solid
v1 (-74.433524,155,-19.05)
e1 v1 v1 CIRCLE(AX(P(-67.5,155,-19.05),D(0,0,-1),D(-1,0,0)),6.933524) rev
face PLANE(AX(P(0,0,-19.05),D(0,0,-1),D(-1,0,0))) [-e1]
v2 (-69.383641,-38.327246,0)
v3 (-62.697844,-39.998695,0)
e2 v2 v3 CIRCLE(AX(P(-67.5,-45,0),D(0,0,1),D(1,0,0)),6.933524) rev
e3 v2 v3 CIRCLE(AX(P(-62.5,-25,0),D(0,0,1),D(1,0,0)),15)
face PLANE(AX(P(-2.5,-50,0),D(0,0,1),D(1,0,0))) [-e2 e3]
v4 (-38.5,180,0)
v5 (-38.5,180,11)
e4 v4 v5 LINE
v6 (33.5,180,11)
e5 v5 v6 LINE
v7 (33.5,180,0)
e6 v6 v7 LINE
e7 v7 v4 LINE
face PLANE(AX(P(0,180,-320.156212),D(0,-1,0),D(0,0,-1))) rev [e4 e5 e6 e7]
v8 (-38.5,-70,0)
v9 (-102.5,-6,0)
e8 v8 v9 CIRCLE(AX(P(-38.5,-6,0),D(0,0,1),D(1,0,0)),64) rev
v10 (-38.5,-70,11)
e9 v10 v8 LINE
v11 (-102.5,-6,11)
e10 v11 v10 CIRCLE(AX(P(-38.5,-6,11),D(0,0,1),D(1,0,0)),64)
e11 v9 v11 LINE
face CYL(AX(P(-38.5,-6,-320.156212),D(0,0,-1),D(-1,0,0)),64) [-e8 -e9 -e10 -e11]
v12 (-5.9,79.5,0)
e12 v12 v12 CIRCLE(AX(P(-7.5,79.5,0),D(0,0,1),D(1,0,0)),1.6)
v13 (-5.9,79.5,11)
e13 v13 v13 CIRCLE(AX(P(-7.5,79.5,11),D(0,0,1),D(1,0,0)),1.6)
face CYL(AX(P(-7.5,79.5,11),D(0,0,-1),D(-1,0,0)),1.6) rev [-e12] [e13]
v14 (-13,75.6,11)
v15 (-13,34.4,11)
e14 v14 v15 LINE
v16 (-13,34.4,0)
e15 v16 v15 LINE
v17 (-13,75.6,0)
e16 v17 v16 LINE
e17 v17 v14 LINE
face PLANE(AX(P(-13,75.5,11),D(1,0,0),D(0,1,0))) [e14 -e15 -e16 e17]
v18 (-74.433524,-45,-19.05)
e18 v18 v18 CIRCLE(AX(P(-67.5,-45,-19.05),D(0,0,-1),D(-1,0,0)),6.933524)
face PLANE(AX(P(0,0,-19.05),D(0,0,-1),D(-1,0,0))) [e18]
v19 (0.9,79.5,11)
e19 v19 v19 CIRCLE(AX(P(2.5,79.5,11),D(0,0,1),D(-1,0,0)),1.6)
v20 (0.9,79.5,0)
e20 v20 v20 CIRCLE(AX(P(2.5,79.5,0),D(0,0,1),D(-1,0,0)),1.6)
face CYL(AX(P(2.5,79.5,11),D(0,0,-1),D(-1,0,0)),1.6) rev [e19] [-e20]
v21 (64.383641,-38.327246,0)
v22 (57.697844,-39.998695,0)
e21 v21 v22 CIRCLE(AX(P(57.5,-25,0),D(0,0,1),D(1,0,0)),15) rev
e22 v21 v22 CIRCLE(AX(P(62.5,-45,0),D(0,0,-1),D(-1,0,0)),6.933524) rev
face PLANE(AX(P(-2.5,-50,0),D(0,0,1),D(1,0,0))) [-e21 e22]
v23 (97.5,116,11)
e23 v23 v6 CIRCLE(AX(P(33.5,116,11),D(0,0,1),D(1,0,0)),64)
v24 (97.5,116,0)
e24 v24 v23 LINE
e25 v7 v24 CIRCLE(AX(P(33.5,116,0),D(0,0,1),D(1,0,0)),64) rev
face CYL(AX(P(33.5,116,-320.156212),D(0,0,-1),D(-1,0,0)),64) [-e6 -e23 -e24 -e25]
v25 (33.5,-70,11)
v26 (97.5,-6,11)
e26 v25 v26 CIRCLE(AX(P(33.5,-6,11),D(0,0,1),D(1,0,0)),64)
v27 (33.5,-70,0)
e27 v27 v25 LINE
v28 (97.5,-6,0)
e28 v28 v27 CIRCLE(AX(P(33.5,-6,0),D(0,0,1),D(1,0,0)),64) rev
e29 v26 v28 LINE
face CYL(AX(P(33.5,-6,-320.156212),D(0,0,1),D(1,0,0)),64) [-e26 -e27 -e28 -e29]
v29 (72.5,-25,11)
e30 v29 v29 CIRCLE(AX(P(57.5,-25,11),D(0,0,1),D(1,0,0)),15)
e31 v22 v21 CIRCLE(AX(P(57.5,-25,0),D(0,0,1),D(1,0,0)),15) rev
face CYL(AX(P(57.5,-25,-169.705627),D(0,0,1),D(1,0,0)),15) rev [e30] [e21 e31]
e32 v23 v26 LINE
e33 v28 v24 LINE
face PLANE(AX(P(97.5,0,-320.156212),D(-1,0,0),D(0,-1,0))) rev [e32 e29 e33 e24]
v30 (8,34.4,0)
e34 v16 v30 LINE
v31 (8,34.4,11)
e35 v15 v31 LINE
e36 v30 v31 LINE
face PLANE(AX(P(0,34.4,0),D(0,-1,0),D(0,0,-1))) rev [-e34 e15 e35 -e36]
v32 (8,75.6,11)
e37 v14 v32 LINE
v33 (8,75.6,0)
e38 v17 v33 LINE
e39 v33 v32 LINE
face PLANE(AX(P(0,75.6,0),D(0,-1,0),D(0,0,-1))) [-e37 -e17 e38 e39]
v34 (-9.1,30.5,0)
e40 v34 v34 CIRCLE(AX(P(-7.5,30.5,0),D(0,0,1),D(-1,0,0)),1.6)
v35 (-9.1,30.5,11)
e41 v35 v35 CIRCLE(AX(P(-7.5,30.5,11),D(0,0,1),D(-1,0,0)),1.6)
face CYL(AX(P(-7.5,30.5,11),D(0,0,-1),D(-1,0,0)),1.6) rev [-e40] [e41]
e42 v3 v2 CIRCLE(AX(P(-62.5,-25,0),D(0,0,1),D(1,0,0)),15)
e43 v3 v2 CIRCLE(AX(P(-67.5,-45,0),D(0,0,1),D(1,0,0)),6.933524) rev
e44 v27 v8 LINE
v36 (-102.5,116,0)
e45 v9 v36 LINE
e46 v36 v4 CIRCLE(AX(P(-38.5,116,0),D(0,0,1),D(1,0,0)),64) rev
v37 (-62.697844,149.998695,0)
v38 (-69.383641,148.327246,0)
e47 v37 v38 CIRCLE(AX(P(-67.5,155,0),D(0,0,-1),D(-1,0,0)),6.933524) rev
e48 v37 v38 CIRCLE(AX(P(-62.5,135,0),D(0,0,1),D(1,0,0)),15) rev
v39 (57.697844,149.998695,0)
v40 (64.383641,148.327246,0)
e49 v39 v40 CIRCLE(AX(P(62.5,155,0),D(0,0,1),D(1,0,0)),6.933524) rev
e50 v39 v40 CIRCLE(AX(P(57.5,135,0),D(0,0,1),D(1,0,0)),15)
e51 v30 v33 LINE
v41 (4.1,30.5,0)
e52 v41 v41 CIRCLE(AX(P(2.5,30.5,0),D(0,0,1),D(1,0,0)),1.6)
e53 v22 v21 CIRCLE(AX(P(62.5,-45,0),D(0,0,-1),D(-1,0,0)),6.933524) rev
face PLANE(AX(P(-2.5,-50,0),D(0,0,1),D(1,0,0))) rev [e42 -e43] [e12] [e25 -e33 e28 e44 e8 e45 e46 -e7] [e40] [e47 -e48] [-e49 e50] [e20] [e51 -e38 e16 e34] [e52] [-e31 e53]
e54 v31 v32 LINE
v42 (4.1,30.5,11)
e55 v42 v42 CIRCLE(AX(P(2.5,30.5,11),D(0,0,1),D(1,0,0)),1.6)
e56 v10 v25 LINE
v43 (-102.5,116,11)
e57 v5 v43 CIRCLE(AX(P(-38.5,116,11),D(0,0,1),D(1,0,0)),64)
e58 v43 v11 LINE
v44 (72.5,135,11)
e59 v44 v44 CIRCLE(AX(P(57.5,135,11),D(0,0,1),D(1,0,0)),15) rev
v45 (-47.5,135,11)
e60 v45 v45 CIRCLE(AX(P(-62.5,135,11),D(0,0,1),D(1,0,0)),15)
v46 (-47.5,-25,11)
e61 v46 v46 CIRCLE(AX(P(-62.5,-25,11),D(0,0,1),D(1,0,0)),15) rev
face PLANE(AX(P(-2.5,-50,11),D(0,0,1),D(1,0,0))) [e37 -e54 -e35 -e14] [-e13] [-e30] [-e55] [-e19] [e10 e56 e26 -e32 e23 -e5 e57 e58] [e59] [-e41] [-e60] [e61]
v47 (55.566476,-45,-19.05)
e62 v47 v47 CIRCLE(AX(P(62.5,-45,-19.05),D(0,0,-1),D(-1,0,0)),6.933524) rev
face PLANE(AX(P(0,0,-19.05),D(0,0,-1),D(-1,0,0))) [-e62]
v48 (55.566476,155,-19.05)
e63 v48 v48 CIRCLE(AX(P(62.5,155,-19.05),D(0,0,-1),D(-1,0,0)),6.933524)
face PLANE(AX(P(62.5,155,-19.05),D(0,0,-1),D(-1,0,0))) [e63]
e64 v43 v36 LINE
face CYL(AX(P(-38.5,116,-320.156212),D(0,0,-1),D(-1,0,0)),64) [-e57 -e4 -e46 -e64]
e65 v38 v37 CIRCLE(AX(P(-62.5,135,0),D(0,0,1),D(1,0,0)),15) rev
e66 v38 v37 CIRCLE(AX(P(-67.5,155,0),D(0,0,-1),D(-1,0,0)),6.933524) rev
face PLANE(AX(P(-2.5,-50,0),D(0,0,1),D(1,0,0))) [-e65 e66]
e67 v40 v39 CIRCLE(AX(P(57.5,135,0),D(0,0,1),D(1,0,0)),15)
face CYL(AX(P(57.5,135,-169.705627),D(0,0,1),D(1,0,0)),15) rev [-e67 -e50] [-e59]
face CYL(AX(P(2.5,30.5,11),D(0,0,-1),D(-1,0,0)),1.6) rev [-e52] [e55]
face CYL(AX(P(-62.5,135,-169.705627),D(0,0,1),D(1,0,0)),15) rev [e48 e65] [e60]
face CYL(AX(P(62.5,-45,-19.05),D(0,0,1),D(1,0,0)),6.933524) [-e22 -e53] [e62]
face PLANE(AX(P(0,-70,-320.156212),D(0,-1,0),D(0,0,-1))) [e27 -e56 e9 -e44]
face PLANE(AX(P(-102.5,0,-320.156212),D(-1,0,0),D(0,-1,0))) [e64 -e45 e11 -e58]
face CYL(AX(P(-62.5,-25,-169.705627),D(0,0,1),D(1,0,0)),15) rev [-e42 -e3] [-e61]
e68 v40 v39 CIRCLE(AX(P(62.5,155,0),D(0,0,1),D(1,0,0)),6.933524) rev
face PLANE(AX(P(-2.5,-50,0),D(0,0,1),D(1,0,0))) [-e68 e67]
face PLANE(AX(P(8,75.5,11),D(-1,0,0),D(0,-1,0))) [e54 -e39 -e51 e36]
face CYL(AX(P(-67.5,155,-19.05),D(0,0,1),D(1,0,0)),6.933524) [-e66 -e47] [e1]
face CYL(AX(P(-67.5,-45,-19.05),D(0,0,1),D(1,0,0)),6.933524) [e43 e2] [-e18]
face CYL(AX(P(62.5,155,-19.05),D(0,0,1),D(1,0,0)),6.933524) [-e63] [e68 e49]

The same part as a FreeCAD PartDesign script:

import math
import FreeCAD as App
import Part
import Sketcher

V = App.Vector
Q = App.Units.Quantity


def edges_at(feature, points):
    """Names of the edges that pass closest to the given points."""
    edges = feature.Shape.Edges
    near = lambda p: min(range(len(edges)), key=lambda i: edges[i].distToShape(Part.Vertex(*p))[0])
    return sorted({f"Edge{near(p) + 1}" for p in points})


def add_polygon(sketch, points):
    """Adds a closed chain of lines whose ends are joined by coincident constraints."""
    first, n = sketch.GeometryCount, len(points)
    for a, b in zip(points, points[1:] + points[:1]):
        sketch.addGeometry(Part.LineSegment(App.Vector(*a, 0), App.Vector(*b, 0)), False)
    for i in range(n):
        sketch.addConstraint(Sketcher.Constraint("Coincident", first + i, 2, first + (i + 1) % n, 1))

doc = App.newDocument("Part")
params = doc.addObject("Spreadsheet::Sheet", "Params")
for row, (alias, value) in enumerate([
    ("sketch1_diameter", "3.2 mm"),
    ("sketch1_radius", "17.5 mm"),
    ("sketch1_width", "21 mm"),
    ("sketch1_height", "120 mm"),
    ("sketch1_height2", "41 mm"),
    ("pad1_length", "11 mm"),
    ("sketch2_width", "21 mm"),
    ("sketch2_height", "0.1 mm"),
    ("sketch3_diameter", "3.2 mm"),
    ("sketch3_width", "21 mm"),
    ("sketch3_height", "41.2 mm"),
    ("pocket2_length", "11 mm"),
    ("sketch4_diameter", "3.2 mm"),
    ("sketch4_radius", "17.5 mm"),
    ("sketch4_width", "200 mm"),
    ("sketch4_width2", "21 mm"),
    ("sketch4_height", "250 mm"),
    ("pad2_length", "11 mm"),
    ("fillet_radius", "64 mm"),
    ("fillet2_radius", "64 mm"),
    ("fillet3_radius", "64 mm"),
    ("fillet4_radius", "64 mm"),
    ("pad3_length", "19.05 mm"),
    ("sketch6_diameter", "30 mm"),
    ("pocket3_length", "11 mm"),
], start=1):
    params.set(f"A{row}", alias)
    params.set(f"B{row}", "=" + value)
    params.setAlias(f"B{row}", alias)

body = doc.addObject("PartDesign::Body", "Body")

# Sketch on XY plane
sketch1 = body.newObject("Sketcher::SketchObject", "Sketch")
sketch1.AttachmentSupport = (doc.getObject("XY_Plane"), [""])
sketch1.MapMode = "FlatFace"
sketch1.addGeometry(Part.LineSegment(V(-20, 70, 0), V(-20, -50, 0)), False)  # 0
sketch1.addGeometry(Part.ArcOfCircle(Part.Circle(V(-2.5, -50, 0), V(0, 0, 1), 17.5), math.radians(180), math.radians(360)), False)  # 1
sketch1.addGeometry(Part.LineSegment(V(15, -50, 0), V(15, 70, 0)), False)  # 2
sketch1.addGeometry(Part.ArcOfCircle(Part.Circle(V(-2.5, 70, 0), V(0, 0, 1), 17.5), math.radians(0), math.radians(180)), False)  # 3
sketch1.addGeometry(Part.Circle(V(-7.5, 30.5, 0), V(0, 0, 1), 1.6), False)  # 4
sketch1.addGeometry(Part.Circle(V(2.5, 30.5, 0), V(0, 0, 1), 1.6), False)  # 5
sketch1.addGeometry(Part.Circle(V(-7.5, 79.5, 0), V(0, 0, 1), 1.6), False)  # 6
add_polygon(sketch1, [(8, 34.5), (-13, 34.5), (-13, 75.5), (8, 75.5)])  # lines 7-10
sketch1.addGeometry(Part.Circle(V(2.5, 79.5, 0), V(0, 0, 1), 1.6), False)  # 11
sketch1.addConstraint([
    Sketcher.Constraint("Tangent", 0, 2, 1, 1),
    Sketcher.Constraint("Tangent", 1, 2, 2, 1),
    Sketcher.Constraint("Tangent", 2, 2, 3, 1),
    Sketcher.Constraint("Tangent", 3, 2, 0, 1),
    Sketcher.Constraint("Vertical", 0),
    Sketcher.Constraint("Vertical", 2),
    Sketcher.Constraint("Horizontal", 7),
    Sketcher.Constraint("Vertical", 8),
    Sketcher.Constraint("Horizontal", 9),
    Sketcher.Constraint("Vertical", 10),
    Sketcher.Constraint("Equal", 4, 5),
    Sketcher.Constraint("Equal", 5, 6),
    Sketcher.Constraint("Equal", 6, 11),
    Sketcher.Constraint("Horizontal", 4, 3, 5, 3),
    Sketcher.Constraint("Horizontal", 6, 3, 11, 3),
    Sketcher.Constraint("Vertical", 4, 3, 6, 3),
    Sketcher.Constraint("Vertical", 5, 3, 11, 3),
    Sketcher.Constraint("Diameter", 4, Q("3.2 mm")),
    Sketcher.Constraint("Radius", 1, Q("17.5 mm")),
    Sketcher.Constraint("DistanceX", 7, 2, 7, 1, Q("21 mm")),
    Sketcher.Constraint("DistanceY", 0, 2, 0, 1, Q("120 mm")),
    Sketcher.Constraint("DistanceY", 8, 1, 8, 2, Q("41 mm")),
    Sketcher.Constraint("DistanceY", 1, 3, -1, 1, Q("50 mm")),
    Sketcher.Constraint("DistanceX", 0, 2, -1, 1, Q("20 mm")),
    Sketcher.Constraint("DistanceX", 7, 2, -1, 1, Q("13 mm")),
    Sketcher.Constraint("DistanceX", 4, 3, 3, 3, Q("5 mm")),
    Sketcher.Constraint("DistanceX", 4, 3, 5, 3, Q("10 mm")),
    Sketcher.Constraint("DistanceY", 4, 3, 6, 3, Q("49 mm")),
    Sketcher.Constraint("DistanceY", 4, 3, 7, 2, Q("4 mm")),
    Sketcher.Constraint("DistanceY", -1, 1, 4, 3, Q("30.5 mm")),
])
sketch1.setExpression("Constraints[21]", "Params.sketch1_diameter")
sketch1.setExpression("Constraints[22]", "Params.sketch1_radius")
sketch1.setExpression("Constraints[23]", "Params.sketch1_width")
sketch1.setExpression("Constraints[24]", "Params.sketch1_height")
sketch1.setExpression("Constraints[25]", "Params.sketch1_height2")
pad1 = body.newObject("PartDesign::Pad", "Pad")
pad1.Profile = sketch1
pad1.setExpression("Length", "Params.pad1_length")

# Sketch on XY plane
sketch2 = body.newObject("Sketcher::SketchObject", "Sketch001")
sketch2.AttachmentSupport = (doc.getObject("XY_Plane"), [""])
sketch2.MapMode = "FlatFace"
sketch2.AttachmentOffset = App.Placement(V(0, 0, 11), App.Rotation())
add_polygon(sketch2, [(-13, 75.6), (-13, 75.5), (8, 75.5), (8, 75.6)])  # lines 0-3
add_polygon(sketch2, [(-13, 34.5), (-13, 34.4), (8, 34.4), (8, 34.5)])  # lines 4-7
sketch2.addConstraint([
    Sketcher.Constraint("Vertical", 0),
    Sketcher.Constraint("Horizontal", 1),
    Sketcher.Constraint("Vertical", 2),
    Sketcher.Constraint("Horizontal", 3),
    Sketcher.Constraint("Vertical", 4),
    Sketcher.Constraint("Horizontal", 5),
    Sketcher.Constraint("Vertical", 6),
    Sketcher.Constraint("Horizontal", 7),
    Sketcher.Constraint("Vertical", 3, 2, 4, 2),
    Sketcher.Constraint("Vertical", 2, 2, 5, 2),
    Sketcher.Constraint("Equal", 2, 4),
    Sketcher.Constraint("DistanceX", 1, 1, 1, 2, Q("21 mm")),
    Sketcher.Constraint("DistanceY", 0, 2, 0, 1, Q("0.1 mm")),
    Sketcher.Constraint("DistanceX", 0, 2, -1, 1, Q("13 mm")),
    Sketcher.Constraint("DistanceY", 6, 2, 1, 2, Q("41 mm")),
    Sketcher.Constraint("DistanceY", -1, 1, 0, 2, Q("75.5 mm")),
])
sketch2.setExpression("Constraints[19]", "Params.sketch2_width")
sketch2.setExpression("Constraints[20]", "Params.sketch2_height")
pocket1 = body.newObject("PartDesign::Pocket", "Pocket")
pocket1.Profile = sketch2
pocket1.Type = "ThroughAll"

# Sketch on XY plane
sketch3 = body.newObject("Sketcher::SketchObject", "Sketch002")
sketch3.AttachmentSupport = (doc.getObject("XY_Plane"), [""])
sketch3.MapMode = "FlatFace"
add_polygon(sketch3, [(8, -14.4), (8, -55.6), (-13, -55.6), (-13, -14.4)])  # lines 0-3
sketch3.addGeometry(Part.Circle(V(2.5, -10.5, 0), V(0, 0, 1), 1.6), False)  # 4
sketch3.addGeometry(Part.Circle(V(-7.5, -10.5, 0), V(0, 0, 1), 1.6), False)  # 5
sketch3.addGeometry(Part.Circle(V(2.5, -59.5, 0), V(0, 0, 1), 1.6), False)  # 6
sketch3.addGeometry(Part.Circle(V(-7.5, -59.5, 0), V(0, 0, 1), 1.6), False)  # 7
sketch3.addConstraint([
    Sketcher.Constraint("Vertical", 0),
    Sketcher.Constraint("Horizontal", 1),
    Sketcher.Constraint("Vertical", 2),
    Sketcher.Constraint("Horizontal", 3),
    Sketcher.Constraint("Equal", 4, 5),
    Sketcher.Constraint("Equal", 5, 6),
    Sketcher.Constraint("Equal", 6, 7),
    Sketcher.Constraint("Horizontal", 4, 3, 5, 3),
    Sketcher.Constraint("Horizontal", 6, 3, 7, 3),
    Sketcher.Constraint("Vertical", 4, 3, 6, 3),
    Sketcher.Constraint("Vertical", 5, 3, 7, 3),
    Sketcher.Constraint("Diameter", 4, Q("3.2 mm")),
    Sketcher.Constraint("DistanceX", 1, 2, 1, 1, Q("21 mm")),
    Sketcher.Constraint("DistanceY", 0, 2, 0, 1, Q("41.2 mm")),
    Sketcher.Constraint("DistanceX", -1, 1, 0, 2, Q("8 mm")),
    Sketcher.Constraint("DistanceX", 5, 3, 4, 3, Q("10 mm")),
    Sketcher.Constraint("DistanceY", 6, 3, 4, 3, Q("49 mm")),
    Sketcher.Constraint("DistanceX", -1, 1, 4, 3, Q("2.5 mm")),
    Sketcher.Constraint("DistanceY", 4, 3, -1, 1, Q("10.5 mm")),
    Sketcher.Constraint("DistanceY", 0, 2, -1, 1, Q("55.6 mm")),
])
sketch3.setExpression("Constraints[15]", "Params.sketch3_diameter")
sketch3.setExpression("Constraints[16]", "Params.sketch3_width")
sketch3.setExpression("Constraints[17]", "Params.sketch3_height")
pocket2 = body.newObject("PartDesign::Pocket", "Pocket001")
pocket2.Profile = sketch3
pocket2.setExpression("Length", "Params.pocket2_length")
pocket2.Reversed = True

# Sketch on XY plane
sketch4 = body.newObject("Sketcher::SketchObject", "Sketch003")
sketch4.AttachmentSupport = (doc.getObject("XY_Plane"), [""])
sketch4.MapMode = "FlatFace"
add_polygon(sketch4, [(-102.5, 180), (-102.5, -70), (97.5, -70), (97.5, 180)])  # lines 0-3
sketch4.addGeometry(Part.ArcOfCircle(Part.Circle(V(-2.5, -50, 0), V(0, 0, 1), 17.5), math.radians(180), math.radians(360)), False)  # 4
sketch4.addGeometry(Part.LineSegment(V(-20, -50, 0), V(-20, 70, 0)), False)  # 5
sketch4.addGeometry(Part.ArcOfCircle(Part.Circle(V(-2.5, 70, 0), V(0, 0, 1), 17.5), math.radians(0), math.radians(180)), False)  # 6
sketch4.addGeometry(Part.LineSegment(V(15, 70, 0), V(15, -50, 0)), False)  # 7
add_polygon(sketch4, [(-13, -14.4), (-13, -55.6), (8, -55.6), (8, -14.4)])  # lines 8-11
sketch4.addGeometry(Part.Circle(V(-7.5, -59.5, 0), V(0, 0, 1), 1.6), False)  # 12
sketch4.addGeometry(Part.Circle(V(2.5, -59.5, 0), V(0, 0, 1), 1.6), False)  # 13
sketch4.addGeometry(Part.Circle(V(-7.5, -10.5, 0), V(0, 0, 1), 1.6), False)  # 14
sketch4.addGeometry(Part.Circle(V(2.5, -10.5, 0), V(0, 0, 1), 1.6), False)  # 15
sketch4.addConstraint([
    Sketcher.Constraint("Tangent", 4, 1, 5, 1),
    Sketcher.Constraint("Tangent", 5, 2, 6, 2),
    Sketcher.Constraint("Tangent", 6, 1, 7, 1),
    Sketcher.Constraint("Tangent", 7, 2, 4, 2),
    Sketcher.Constraint("Vertical", 0),
    Sketcher.Constraint("Horizontal", 1),
    Sketcher.Constraint("Vertical", 2),
    Sketcher.Constraint("Horizontal", 3),
    Sketcher.Constraint("Vertical", 5),
    Sketcher.Constraint("Vertical", 7),
    Sketcher.Constraint("Vertical", 8),
    Sketcher.Constraint("Horizontal", 9),
    Sketcher.Constraint("Vertical", 10),
    Sketcher.Constraint("Horizontal", 11),
    Sketcher.Constraint("Equal", 12, 13),
    Sketcher.Constraint("Equal", 13, 14),
    Sketcher.Constraint("Equal", 14, 15),
    Sketcher.Constraint("Horizontal", 12, 3, 13, 3),
    Sketcher.Constraint("Horizontal", 14, 3, 15, 3),
    Sketcher.Constraint("Vertical", 12, 3, 14, 3),
    Sketcher.Constraint("Vertical", 13, 3, 15, 3),
    Sketcher.Constraint("Diameter", 12, Q("3.2 mm")),
    Sketcher.Constraint("Radius", 4, Q("17.5 mm")),
    Sketcher.Constraint("DistanceX", 1, 1, 1, 2, Q("200 mm")),
    Sketcher.Constraint("DistanceX", 9, 1, 9, 2, Q("21 mm")),
    Sketcher.Constraint("DistanceY", 0, 2, 0, 1, Q("250 mm")),
    Sketcher.Constraint("DistanceY", 5, 1, 5, 2, Q("120 mm")),
    Sketcher.Constraint("DistanceY", 8, 2, 8, 1, Q("41.2 mm")),
    Sketcher.Constraint("DistanceY", 4, 3, -1, 1, Q("50 mm")),
    Sketcher.Constraint("DistanceY", 0, 2, -1, 1, Q("70 mm")),
    Sketcher.Constraint("DistanceX", 4, 1, -1, 1, Q("20 mm")),
    Sketcher.Constraint("DistanceX", 8, 2, -1, 1, Q("13 mm")),
    Sketcher.Constraint("DistanceX", 12, 3, 4, 3, Q("5 mm")),
    Sketcher.Constraint("DistanceX", 12, 3, 13, 3, Q("10 mm")),
    Sketcher.Constraint("DistanceY", 12, 3, 14, 3, Q("49 mm")),
    Sketcher.Constraint("DistanceX", 0, 2, 12, 3, Q("95 mm")),
    Sketcher.Constraint("DistanceY", 12, 3, -1, 1, Q("59.5 mm")),
    Sketcher.Constraint("DistanceY", 8, 2, -1, 1, Q("55.6 mm")),
])
sketch4.setExpression("Constraints[29]", "Params.sketch4_diameter")
sketch4.setExpression("Constraints[30]", "Params.sketch4_radius")
sketch4.setExpression("Constraints[31]", "Params.sketch4_width")
sketch4.setExpression("Constraints[32]", "Params.sketch4_width2")
sketch4.setExpression("Constraints[33]", "Params.sketch4_height")
pad2 = body.newObject("PartDesign::Pad", "Pad001")
pad2.Profile = sketch4
pad2.setExpression("Length", "Params.pad2_length")
doc.recompute()

fillet = body.newObject("PartDesign::Fillet", "Fillet")
fillet.Base = (pad2, edges_at(pad2, [(-102.5, 180, 5.5)]))
fillet.setExpression("Radius", "Params.fillet_radius")
doc.recompute()

fillet2 = body.newObject("PartDesign::Fillet", "Fillet001")
fillet2.Base = (fillet, edges_at(fillet, [(97.5, 180, 5.5)]))
fillet2.setExpression("Radius", "Params.fillet2_radius")
doc.recompute()

fillet3 = body.newObject("PartDesign::Fillet", "Fillet002")
fillet3.Base = (fillet2, edges_at(fillet2, [(97.5, -70, 5.5)]))
fillet3.setExpression("Radius", "Params.fillet3_radius")
doc.recompute()

fillet4 = body.newObject("PartDesign::Fillet", "Fillet003")
fillet4.Base = (fillet3, edges_at(fillet3, [(-102.5, -70, 5.5)]))
fillet4.setExpression("Radius", "Params.fillet4_radius")

# Sketch on XY plane
sketch5 = body.newObject("Sketcher::SketchObject", "Sketch004")
sketch5.AttachmentSupport = (doc.getObject("XY_Plane"), [""])
sketch5.MapMode = "FlatFace"
sketch5.addGeometry([
    Part.Circle(V(-68, 155, 0), V(0, 0, 1), 7),
    Part.Circle(V(62, -45, 0), V(0, 0, 1), 7),
    Part.Circle(V(-68, -45, 0), V(0, 0, 1), 7),
    Part.Circle(V(62, 155, 0), V(0, 0, 1), 7),
], False)
sketch5.addConstraint([
    Sketcher.Constraint("Equal", 0, 1),
    Sketcher.Constraint("Equal", 1, 2),
    Sketcher.Constraint("Equal", 2, 3),
    Sketcher.Constraint("Horizontal", 1, 3, 2, 3),
    Sketcher.Constraint("Horizontal", 0, 3, 3, 3),
    Sketcher.Constraint("Vertical", 0, 3, 2, 3),
    Sketcher.Constraint("Vertical", 1, 3, 3, 3),
    Sketcher.Constraint("DistanceY", -1, 1, 0, 3, Q("155 mm")),
    Sketcher.Constraint("DistanceY", 1, 3, -1, 1, Q("45 mm")),
    Sketcher.Constraint("DistanceX", 0, 3, 1, 3, Q("130 mm")),
    Sketcher.Constraint("DistanceX", 0, 3, -1, 1, Q("67.5 mm")),
    Sketcher.Constraint("Diameter", 0, Q("13.867048 mm")),
])
pad3 = body.newObject("PartDesign::Pad", "Pad002")
pad3.Profile = sketch5
pad3.setExpression("Length", "Params.pad3_length")
pad3.Reversed = True

# Sketch on XY plane
sketch6 = body.newObject("Sketcher::SketchObject", "Sketch005")
sketch6.AttachmentSupport = (doc.getObject("XY_Plane"), [""])
sketch6.MapMode = "FlatFace"
sketch6.AttachmentOffset = App.Placement(V(0, 0, 11), App.Rotation())
sketch6.addGeometry([
    Part.Circle(V(-62, 135, 0), V(0, 0, 1), 15),
    Part.Circle(V(58, 135, 0), V(0, 0, 1), 15),
    Part.Circle(V(58, -25, 0), V(0, 0, 1), 15),
    Part.Circle(V(-62, -25, 0), V(0, 0, 1), 15),
], False)
sketch6.addConstraint([
    Sketcher.Constraint("Equal", 0, 1),
    Sketcher.Constraint("Equal", 1, 2),
    Sketcher.Constraint("Equal", 2, 3),
    Sketcher.Constraint("Horizontal", 0, 3, 1, 3),
    Sketcher.Constraint("Horizontal", 2, 3, 3, 3),
    Sketcher.Constraint("Vertical", 1, 3, 2, 3),
    Sketcher.Constraint("Vertical", 0, 3, 3, 3),
    Sketcher.Constraint("Diameter", 0, Q("30 mm")),
    Sketcher.Constraint("DistanceY", -1, 1, 0, 3, Q("135 mm")),
    Sketcher.Constraint("DistanceY", 2, 3, -1, 1, Q("25 mm")),
    Sketcher.Constraint("DistanceX", 0, 3, 1, 3, Q("120 mm")),
    Sketcher.Constraint("DistanceX", 0, 3, -1, 1, Q("62.5 mm")),
])
sketch6.setExpression("Constraints[7]", "Params.sketch6_diameter")
pocket3 = body.newObject("PartDesign::Pocket", "Pocket002")
pocket3.Profile = sketch6
pocket3.setExpression("Length", "Params.pocket3_length")

doc.recompute()
